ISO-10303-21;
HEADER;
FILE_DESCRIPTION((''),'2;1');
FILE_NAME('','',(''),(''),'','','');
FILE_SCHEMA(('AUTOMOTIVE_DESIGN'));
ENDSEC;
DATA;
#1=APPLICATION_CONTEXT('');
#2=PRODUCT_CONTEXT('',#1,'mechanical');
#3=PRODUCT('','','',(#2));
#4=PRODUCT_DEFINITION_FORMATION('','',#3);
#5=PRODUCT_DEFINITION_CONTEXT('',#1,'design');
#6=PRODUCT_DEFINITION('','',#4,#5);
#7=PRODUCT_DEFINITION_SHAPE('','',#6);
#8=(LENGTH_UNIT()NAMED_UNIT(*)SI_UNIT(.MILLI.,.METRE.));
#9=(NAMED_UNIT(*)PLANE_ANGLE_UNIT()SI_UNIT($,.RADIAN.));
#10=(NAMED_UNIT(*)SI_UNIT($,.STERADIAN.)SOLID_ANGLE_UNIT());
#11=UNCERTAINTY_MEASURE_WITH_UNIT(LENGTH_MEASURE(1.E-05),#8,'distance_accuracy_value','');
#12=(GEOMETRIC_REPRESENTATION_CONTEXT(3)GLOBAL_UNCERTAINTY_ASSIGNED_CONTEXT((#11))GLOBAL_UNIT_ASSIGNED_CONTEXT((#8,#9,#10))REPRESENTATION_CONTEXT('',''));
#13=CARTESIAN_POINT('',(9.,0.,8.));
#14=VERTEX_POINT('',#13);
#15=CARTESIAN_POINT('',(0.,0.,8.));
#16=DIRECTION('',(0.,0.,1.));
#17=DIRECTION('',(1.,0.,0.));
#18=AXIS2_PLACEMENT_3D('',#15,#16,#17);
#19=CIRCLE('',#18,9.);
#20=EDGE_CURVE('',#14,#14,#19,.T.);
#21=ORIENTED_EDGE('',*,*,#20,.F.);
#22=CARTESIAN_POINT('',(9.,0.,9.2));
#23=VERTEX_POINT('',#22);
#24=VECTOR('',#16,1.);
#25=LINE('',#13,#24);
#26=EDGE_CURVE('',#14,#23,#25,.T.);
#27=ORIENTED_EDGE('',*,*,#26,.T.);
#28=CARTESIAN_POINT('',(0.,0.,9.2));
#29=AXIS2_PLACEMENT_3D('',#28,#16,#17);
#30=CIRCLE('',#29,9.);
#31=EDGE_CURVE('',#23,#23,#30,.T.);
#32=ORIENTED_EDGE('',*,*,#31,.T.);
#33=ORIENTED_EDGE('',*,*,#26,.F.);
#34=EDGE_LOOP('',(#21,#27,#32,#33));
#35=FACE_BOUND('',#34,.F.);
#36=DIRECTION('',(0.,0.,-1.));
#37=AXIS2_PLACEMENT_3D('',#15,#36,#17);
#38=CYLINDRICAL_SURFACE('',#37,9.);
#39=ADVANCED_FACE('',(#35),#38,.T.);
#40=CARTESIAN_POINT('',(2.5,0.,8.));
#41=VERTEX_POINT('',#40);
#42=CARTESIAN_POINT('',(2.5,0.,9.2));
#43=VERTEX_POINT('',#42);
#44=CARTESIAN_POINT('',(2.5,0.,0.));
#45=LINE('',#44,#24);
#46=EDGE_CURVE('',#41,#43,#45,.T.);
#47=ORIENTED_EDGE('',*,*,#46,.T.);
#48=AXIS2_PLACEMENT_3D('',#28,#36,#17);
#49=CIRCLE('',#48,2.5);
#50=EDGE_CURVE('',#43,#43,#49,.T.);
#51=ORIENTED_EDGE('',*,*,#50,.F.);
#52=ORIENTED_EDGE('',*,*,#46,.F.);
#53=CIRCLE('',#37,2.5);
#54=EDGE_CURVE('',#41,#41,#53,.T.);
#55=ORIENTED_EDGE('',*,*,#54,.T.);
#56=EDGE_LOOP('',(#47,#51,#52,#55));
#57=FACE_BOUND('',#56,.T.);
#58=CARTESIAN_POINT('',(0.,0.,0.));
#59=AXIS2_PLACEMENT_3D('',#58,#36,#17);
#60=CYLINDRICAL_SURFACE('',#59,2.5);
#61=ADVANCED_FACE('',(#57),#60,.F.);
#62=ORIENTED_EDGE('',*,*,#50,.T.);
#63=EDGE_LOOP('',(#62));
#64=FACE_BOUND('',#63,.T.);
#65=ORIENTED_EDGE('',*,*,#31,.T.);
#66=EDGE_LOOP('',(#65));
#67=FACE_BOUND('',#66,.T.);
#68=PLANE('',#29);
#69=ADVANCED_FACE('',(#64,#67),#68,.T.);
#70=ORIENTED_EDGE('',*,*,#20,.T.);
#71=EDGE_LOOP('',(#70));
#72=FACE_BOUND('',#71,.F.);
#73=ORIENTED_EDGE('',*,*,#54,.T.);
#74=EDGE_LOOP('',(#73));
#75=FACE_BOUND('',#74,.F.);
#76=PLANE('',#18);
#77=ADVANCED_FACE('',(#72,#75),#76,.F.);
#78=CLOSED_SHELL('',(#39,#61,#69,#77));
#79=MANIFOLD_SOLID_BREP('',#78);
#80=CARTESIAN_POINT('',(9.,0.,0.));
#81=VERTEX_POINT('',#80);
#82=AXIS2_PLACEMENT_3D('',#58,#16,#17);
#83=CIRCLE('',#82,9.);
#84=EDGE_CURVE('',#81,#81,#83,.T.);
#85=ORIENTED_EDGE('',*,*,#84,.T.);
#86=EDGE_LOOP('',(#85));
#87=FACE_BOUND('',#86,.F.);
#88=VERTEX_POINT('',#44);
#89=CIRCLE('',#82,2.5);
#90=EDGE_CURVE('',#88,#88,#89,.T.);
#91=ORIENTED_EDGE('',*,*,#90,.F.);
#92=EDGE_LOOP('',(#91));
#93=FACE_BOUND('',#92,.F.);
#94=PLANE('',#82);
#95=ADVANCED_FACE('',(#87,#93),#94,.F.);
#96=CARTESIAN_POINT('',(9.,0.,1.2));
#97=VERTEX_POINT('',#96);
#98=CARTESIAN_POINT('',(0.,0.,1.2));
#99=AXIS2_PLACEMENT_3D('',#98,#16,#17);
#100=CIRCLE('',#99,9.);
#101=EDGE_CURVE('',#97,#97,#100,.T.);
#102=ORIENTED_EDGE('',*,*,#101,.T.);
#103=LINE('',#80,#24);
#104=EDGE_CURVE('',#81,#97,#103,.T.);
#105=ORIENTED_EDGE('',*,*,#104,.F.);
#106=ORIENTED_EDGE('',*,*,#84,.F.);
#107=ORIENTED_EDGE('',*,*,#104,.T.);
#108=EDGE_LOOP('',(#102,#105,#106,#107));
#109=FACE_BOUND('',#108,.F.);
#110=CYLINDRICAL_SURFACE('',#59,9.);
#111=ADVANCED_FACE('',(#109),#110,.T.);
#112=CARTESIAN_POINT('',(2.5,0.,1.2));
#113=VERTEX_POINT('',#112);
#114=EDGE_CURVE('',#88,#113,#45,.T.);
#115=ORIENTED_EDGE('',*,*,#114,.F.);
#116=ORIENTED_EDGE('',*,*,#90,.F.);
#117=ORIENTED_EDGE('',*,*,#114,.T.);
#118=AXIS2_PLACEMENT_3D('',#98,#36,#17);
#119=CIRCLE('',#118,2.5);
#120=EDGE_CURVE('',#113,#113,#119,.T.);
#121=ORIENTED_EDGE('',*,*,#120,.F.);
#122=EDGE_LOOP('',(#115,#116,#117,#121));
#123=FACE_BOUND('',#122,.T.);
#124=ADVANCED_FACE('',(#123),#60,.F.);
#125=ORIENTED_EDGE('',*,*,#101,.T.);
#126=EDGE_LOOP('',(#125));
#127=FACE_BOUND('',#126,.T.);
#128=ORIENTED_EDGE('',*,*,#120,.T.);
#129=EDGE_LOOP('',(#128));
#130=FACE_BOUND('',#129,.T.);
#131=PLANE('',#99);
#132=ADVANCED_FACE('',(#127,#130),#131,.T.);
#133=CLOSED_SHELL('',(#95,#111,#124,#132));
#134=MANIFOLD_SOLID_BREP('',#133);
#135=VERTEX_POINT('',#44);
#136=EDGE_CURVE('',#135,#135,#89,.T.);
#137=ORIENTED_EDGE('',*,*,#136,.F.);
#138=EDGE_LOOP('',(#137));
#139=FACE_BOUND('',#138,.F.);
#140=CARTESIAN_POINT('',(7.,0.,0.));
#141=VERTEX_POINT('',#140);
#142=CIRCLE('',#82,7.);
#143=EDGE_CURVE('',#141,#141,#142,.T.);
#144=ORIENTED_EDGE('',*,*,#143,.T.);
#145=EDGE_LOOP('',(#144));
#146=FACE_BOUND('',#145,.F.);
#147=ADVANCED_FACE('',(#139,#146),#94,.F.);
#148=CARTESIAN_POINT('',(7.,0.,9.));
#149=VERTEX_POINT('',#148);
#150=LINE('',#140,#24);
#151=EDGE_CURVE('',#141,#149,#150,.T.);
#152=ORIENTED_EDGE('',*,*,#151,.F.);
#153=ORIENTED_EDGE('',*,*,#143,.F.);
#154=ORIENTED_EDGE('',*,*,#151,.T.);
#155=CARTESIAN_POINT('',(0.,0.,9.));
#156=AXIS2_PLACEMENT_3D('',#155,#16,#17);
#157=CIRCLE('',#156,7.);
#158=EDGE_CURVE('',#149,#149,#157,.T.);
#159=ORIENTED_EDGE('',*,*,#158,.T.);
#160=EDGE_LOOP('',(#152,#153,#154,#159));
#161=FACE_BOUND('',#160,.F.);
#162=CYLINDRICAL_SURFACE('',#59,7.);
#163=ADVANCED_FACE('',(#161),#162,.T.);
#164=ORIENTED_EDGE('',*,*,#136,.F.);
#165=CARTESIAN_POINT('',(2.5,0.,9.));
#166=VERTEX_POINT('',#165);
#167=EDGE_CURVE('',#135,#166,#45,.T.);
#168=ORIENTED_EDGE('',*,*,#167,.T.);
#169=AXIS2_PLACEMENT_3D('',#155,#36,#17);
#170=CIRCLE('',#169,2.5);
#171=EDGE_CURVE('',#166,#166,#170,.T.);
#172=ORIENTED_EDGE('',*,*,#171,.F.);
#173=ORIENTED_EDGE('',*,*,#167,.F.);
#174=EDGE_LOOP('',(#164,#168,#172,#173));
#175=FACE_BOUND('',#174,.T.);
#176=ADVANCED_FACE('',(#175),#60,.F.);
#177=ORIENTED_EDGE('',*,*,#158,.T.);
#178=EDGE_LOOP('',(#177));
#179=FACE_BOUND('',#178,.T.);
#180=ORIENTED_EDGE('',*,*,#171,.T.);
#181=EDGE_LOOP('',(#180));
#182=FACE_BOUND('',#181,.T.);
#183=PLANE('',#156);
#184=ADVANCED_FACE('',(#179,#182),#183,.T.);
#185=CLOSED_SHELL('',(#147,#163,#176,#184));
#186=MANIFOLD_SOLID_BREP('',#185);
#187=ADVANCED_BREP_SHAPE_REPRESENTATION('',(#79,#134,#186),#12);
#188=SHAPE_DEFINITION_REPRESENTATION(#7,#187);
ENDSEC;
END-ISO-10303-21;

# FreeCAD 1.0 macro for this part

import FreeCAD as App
import Part
import Sketcher

V = App.Vector

doc = App.newDocument("Part")
body = doc.addObject("PartDesign::Body", "Body")

sketch1 = body.newObject("Sketcher::SketchObject", "Sketch")
sketch1.AttachmentSupport = (doc.getObject("XY_Plane"), [""])
sketch1.MapMode = "FlatFace"
sketch1.addGeometry(Part.Circle(V(0, 0, 0), V(0, 0, 1), 2.5), False)
sketch1.addConstraint([
    Sketcher.Constraint("Coincident", 0, 3, -1, 1),
    Sketcher.Constraint("Diameter", 0, 5.0),
])
pad1 = body.newObject("PartDesign::Pad", "Pad")
pad1.Profile = sketch1
pad1.Length = 12
body2 = doc.addObject("PartDesign::Body", "Body001")

sketch2 = body2.newObject("Sketcher::SketchObject", "Sketch001")
sketch2.AttachmentSupport = (doc.getObject("XY_Plane001"), [""])
sketch2.MapMode = "FlatFace"
sketch2.addGeometry(Part.Circle(V(0, 0, 0), V(0, 0, 1), 7), False)
sketch2.addConstraint([
    Sketcher.Constraint("Coincident", 0, 3, -1, 1),
    Sketcher.Constraint("Diameter", 0, 14.0),
])
pad2 = body2.newObject("PartDesign::Pad", "Pad001")
pad2.Profile = sketch2
pad2.Length = 9
doc.recompute()

body3 = doc.addObject("PartDesign::Body", "Body002")
body3.BaseFeature = body
boolean = body2.newObject("PartDesign::Boolean", "Boolean")
boolean.Type = "Cut"
boolean.addObjects([body3])
doc.recompute()
body4 = doc.addObject("PartDesign::Body", "Body003")

sketch3 = body4.newObject("Sketcher::SketchObject", "Sketch002")
sketch3.AttachmentSupport = (doc.getObject("XY_Plane003"), [""])
sketch3.MapMode = "FlatFace"
sketch3.AttachmentOffset = App.Placement(V(0, 0, 8), App.Rotation())
sketch3.addGeometry(Part.Circle(V(0, 0, 0), V(0, 0, 1), 9), False)
sketch3.addConstraint([
    Sketcher.Constraint("Coincident", 0, 3, -1, 1),
    Sketcher.Constraint("Diameter", 0, 18.0),
])
pad3 = body4.newObject("PartDesign::Pad", "Pad002")
pad3.Profile = sketch3
pad3.Length = 1.2
doc.recompute()

body5 = doc.addObject("PartDesign::Body", "Body004")
body5.BaseFeature = body
boolean2 = body4.newObject("PartDesign::Boolean", "Boolean001")
boolean2.Type = "Cut"
boolean2.addObjects([body5])
doc.recompute()
body6 = doc.addObject("PartDesign::Body", "Body005")

sketch4 = body6.newObject("Sketcher::SketchObject", "Sketch003")
sketch4.AttachmentSupport = (doc.getObject("XY_Plane005"), [""])
sketch4.MapMode = "FlatFace"
sketch4.addGeometry(Part.Circle(V(0, 0, 0), V(0, 0, 1), 9), False)
sketch4.addConstraint([
    Sketcher.Constraint("Coincident", 0, 3, -1, 1),
    Sketcher.Constraint("Diameter", 0, 18.0),
])
pad4 = body6.newObject("PartDesign::Pad", "Pad003")
pad4.Profile = sketch4
pad4.Length = 1.2
doc.recompute()

boolean3 = body6.newObject("PartDesign::Boolean", "Boolean002")
boolean3.Type = "Cut"
boolean3.addObjects([body])

doc.recompute()
